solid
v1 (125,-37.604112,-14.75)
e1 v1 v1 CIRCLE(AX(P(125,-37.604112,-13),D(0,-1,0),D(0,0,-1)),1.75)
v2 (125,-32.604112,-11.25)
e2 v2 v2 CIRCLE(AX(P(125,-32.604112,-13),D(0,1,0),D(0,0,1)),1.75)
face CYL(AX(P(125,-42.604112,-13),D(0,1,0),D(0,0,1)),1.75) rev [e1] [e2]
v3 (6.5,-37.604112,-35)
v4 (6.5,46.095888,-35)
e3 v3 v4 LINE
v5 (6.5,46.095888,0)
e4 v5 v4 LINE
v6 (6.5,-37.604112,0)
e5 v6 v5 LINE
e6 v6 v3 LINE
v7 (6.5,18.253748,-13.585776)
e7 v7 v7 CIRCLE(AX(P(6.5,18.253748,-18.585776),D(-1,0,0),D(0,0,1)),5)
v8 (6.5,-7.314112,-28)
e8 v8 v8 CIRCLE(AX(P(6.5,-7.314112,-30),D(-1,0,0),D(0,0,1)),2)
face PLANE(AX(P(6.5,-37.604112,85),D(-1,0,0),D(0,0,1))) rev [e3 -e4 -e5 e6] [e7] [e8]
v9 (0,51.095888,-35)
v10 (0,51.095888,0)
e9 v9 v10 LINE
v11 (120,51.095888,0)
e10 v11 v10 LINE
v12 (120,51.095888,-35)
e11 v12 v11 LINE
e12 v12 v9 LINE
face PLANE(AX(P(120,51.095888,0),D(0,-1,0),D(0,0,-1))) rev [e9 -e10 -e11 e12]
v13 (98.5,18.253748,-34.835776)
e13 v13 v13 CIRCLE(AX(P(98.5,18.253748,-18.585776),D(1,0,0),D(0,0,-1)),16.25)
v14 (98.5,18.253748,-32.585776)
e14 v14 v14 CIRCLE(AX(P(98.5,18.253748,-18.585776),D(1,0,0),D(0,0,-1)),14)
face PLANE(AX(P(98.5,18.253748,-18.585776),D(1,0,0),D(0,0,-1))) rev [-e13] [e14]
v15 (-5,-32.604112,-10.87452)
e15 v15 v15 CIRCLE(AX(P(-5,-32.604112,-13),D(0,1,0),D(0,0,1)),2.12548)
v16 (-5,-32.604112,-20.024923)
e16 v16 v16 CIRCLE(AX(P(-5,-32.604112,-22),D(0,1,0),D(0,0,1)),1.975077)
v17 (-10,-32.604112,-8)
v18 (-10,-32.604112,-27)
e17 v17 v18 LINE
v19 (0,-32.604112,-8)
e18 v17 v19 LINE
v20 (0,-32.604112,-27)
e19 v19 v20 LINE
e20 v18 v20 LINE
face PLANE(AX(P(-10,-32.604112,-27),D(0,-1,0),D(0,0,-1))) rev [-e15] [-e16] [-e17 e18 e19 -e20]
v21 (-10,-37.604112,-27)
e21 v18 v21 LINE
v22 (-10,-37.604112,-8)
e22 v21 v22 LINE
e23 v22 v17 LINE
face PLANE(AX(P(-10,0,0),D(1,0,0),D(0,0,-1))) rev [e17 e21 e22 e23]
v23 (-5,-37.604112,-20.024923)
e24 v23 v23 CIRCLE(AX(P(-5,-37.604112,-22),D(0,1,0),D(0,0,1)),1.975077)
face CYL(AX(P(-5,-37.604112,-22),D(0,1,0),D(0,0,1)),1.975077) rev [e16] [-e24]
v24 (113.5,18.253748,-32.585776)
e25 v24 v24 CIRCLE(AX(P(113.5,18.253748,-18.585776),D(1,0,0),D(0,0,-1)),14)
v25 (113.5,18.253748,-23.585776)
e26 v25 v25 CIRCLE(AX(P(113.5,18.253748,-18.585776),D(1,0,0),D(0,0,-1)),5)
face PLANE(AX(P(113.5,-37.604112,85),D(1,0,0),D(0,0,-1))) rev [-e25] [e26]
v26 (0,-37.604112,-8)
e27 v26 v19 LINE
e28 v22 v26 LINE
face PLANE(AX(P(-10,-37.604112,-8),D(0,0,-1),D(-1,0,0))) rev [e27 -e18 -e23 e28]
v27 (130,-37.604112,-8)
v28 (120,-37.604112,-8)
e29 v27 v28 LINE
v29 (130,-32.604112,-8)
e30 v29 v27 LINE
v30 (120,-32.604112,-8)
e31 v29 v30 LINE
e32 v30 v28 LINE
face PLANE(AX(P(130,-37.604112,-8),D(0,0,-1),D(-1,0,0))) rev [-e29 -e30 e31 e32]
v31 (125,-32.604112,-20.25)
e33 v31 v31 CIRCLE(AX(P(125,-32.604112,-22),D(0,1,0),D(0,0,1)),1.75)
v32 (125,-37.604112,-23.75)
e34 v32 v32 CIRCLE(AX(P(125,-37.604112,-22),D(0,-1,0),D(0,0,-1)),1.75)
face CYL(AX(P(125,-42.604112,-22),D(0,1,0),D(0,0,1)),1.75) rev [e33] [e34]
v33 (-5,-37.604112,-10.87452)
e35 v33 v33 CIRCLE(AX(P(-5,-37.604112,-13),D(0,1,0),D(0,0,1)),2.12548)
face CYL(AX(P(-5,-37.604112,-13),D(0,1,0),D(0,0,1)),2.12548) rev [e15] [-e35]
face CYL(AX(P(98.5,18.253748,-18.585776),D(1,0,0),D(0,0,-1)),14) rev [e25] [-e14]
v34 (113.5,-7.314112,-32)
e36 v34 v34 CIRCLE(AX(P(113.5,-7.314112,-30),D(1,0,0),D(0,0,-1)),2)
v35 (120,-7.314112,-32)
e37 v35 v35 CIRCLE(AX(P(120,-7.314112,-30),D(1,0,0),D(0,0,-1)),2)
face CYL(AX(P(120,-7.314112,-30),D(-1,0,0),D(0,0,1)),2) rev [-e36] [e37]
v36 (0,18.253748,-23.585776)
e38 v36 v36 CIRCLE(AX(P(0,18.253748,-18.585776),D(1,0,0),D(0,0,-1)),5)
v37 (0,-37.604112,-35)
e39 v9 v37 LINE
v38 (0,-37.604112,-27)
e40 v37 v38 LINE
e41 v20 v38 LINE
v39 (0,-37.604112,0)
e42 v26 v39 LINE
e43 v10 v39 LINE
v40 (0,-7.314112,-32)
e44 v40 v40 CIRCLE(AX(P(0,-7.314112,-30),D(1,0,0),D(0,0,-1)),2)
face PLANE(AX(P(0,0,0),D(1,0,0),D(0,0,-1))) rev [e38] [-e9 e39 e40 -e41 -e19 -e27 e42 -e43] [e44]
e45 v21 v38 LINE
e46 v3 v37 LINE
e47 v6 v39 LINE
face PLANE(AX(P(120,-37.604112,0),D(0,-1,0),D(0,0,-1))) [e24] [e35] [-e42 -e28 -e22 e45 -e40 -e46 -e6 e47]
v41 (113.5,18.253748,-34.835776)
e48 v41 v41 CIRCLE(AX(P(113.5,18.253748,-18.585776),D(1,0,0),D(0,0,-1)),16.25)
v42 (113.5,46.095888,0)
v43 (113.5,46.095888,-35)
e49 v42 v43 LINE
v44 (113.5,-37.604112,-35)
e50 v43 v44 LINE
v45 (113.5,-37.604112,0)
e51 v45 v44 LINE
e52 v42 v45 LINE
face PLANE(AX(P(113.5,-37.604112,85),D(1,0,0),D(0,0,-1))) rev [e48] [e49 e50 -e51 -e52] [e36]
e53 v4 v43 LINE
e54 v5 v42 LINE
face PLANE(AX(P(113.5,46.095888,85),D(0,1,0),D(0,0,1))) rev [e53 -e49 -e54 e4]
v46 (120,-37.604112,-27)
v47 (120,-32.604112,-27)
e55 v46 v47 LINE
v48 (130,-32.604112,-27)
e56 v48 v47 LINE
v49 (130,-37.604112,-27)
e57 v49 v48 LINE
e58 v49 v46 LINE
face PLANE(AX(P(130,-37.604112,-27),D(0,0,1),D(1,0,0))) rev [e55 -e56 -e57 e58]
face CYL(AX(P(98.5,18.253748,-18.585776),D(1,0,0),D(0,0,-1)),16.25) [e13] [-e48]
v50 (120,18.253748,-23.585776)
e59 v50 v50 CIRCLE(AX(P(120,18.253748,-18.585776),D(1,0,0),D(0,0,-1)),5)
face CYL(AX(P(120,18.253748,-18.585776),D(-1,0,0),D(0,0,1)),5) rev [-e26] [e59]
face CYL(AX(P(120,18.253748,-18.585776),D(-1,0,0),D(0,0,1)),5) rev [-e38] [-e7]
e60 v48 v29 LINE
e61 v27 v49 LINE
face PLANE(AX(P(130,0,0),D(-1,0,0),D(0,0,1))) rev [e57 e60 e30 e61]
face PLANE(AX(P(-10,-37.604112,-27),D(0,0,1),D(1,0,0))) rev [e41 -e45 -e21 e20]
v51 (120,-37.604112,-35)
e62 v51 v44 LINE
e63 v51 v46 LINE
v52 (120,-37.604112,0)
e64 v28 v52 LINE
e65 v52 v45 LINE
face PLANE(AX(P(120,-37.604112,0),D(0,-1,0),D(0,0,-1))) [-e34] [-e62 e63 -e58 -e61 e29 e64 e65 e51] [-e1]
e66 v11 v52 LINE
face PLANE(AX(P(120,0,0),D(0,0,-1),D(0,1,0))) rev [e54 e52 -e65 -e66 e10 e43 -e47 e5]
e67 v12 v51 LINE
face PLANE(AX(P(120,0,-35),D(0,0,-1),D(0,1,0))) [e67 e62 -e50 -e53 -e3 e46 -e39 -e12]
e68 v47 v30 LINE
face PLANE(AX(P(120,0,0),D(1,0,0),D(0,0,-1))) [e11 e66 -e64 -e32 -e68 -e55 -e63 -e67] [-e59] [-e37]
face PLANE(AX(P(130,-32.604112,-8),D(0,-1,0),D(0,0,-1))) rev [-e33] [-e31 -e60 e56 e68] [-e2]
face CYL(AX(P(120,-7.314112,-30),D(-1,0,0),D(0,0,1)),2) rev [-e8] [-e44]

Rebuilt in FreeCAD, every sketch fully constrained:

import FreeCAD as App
import Part
import Sketcher


def add_polygon(sketch, points):
    """Adds a closed chain of lines whose ends are joined by coincident constraints."""
    first, n = sketch.GeometryCount, len(points)
    for a, b in zip(points, points[1:] + points[:1]):
        sketch.addGeometry(Part.LineSegment(App.Vector(*a, 0), App.Vector(*b, 0)), False)
    for i in range(n):
        sketch.addConstraint(Sketcher.Constraint("Coincident", first + i, 2, first + (i + 1) % n, 1))

doc = App.newDocument("Part")
body = doc.addObject("PartDesign::Body", "Body")

sketch1 = doc.addObject("Sketcher::SketchObject", "Sketch")
body.addObject(sketch1)
sketch1.AttachmentSupport = (doc.YZ_Plane, [""])
sketch1.MapMode = "FlatFace"
add_polygon(sketch1, [(-37.604112, -35), (51.095888, -35), (51.095888, 0), (-37.604112, 0)])
sketch1.addGeometry(Part.Circle(App.Vector(-7.314112, -30, 0), App.Vector(0, 0, 1), 2), False)
sketch1.addGeometry(Part.Circle(App.Vector(18.253748, -18.585776, 0), App.Vector(0, 0, 1), 5), False)
sketch1.addConstraint(Sketcher.Constraint("Horizontal", 0))
sketch1.addConstraint(Sketcher.Constraint("Vertical", 1))
sketch1.addConstraint(Sketcher.Constraint("Horizontal", 2))
sketch1.addConstraint(Sketcher.Constraint("Vertical", 3))
sketch1.addConstraint(Sketcher.Constraint("PointOnObject", 1, 2, -1))
sketch1.addConstraint(Sketcher.Constraint("Diameter", 4, 4.0))
sketch1.addConstraint(Sketcher.Constraint("Diameter", 5, 10.0))
sketch1.addConstraint(Sketcher.Constraint("DistanceY", 1, 1, 1, 2, 35.0))
sketch1.addConstraint(Sketcher.Constraint("DistanceX", 0, 1, 0, 2, 88.7))
sketch1.addConstraint(Sketcher.Constraint("DistanceY", 4, 3, -1, 1, 30.0))
sketch1.addConstraint(Sketcher.Constraint("DistanceX", 4, 3, 0, 2, 58.41))
sketch1.addConstraint(Sketcher.Constraint("DistanceX", -1, 1, 5, 3, 18.253748))
sketch1.addConstraint(Sketcher.Constraint("DistanceX", 4, 3, 5, 3, 25.567861))
sketch1.addConstraint(Sketcher.Constraint("DistanceY", 5, 3, -1, 1, 18.585776))
pad1 = doc.addObject("PartDesign::Pad", "Pad")
body.addObject(pad1)
pad1.Profile = sketch1
pad1.Length = 120

sketch2 = doc.addObject("Sketcher::SketchObject", "Sketch001")
body.addObject(sketch2)
sketch2.AttachmentSupport = (doc.XY_Plane, [""])
sketch2.MapMode = "FlatFace"
sketch2.AttachmentOffset = App.Placement(App.Vector(0, 0, -35), App.Rotation())
add_polygon(sketch2, [(113.5, 46.095888), (113.5, -37.604112), (6.5, -37.604112), (6.5, 46.095888)])
sketch2.addConstraint(Sketcher.Constraint("Vertical", 0))
sketch2.addConstraint(Sketcher.Constraint("Horizontal", 1))
sketch2.addConstraint(Sketcher.Constraint("Vertical", 2))
sketch2.addConstraint(Sketcher.Constraint("Horizontal", 3))
sketch2.addConstraint(Sketcher.Constraint("DistanceX", 1, 2, 1, 1, 107.0))
sketch2.addConstraint(Sketcher.Constraint("DistanceY", 0, 2, 0, 1, 83.7))
sketch2.addConstraint(Sketcher.Constraint("DistanceX", -1, 1, 0, 2, 113.5))
sketch2.addConstraint(Sketcher.Constraint("DistanceY", 0, 2, -1, 1, 37.604112))
pocket1 = doc.addObject("PartDesign::Pocket", "Pocket")
body.addObject(pocket1)
pocket1.Profile = sketch2
pocket1.Length = 120
pocket1.Reversed = True

sketch3 = doc.addObject("Sketcher::SketchObject", "Sketch002")
body.addObject(sketch3)
sketch3.AttachmentSupport = (doc.YZ_Plane, [""])
sketch3.MapMode = "FlatFace"
sketch3.AttachmentOffset = App.Placement(App.Vector(0, 0, 120), App.Rotation())
sketch3.addGeometry(Part.Circle(App.Vector(18.253748, -18.585776, 0), App.Vector(0, 0, 1), 16.25), False)
sketch3.addGeometry(Part.Circle(App.Vector(18.253748, -18.585776, 0), App.Vector(0, 0, 1), 14), False)
sketch3.addConstraint(Sketcher.Constraint("Coincident", 1, 3, 0, 3))
sketch3.addConstraint(Sketcher.Constraint("Diameter", 1, 28.0))
sketch3.addConstraint(Sketcher.Constraint("Diameter", 0, 32.5))
sketch3.addConstraint(Sketcher.Constraint("DistanceX", -1, 1, 0, 3, 18.253748))
sketch3.addConstraint(Sketcher.Constraint("DistanceY", 0, 3, -1, 1, 18.585776))
pad2 = doc.addObject("PartDesign::Pad", "Pad001")
body.addObject(pad2)
pad2.Profile = sketch3
pad2.Length = 21.5
pad2.Reversed = True

sketch4 = doc.addObject("Sketcher::SketchObject", "Sketch003")
body.addObject(sketch4)
sketch4.AttachmentSupport = (doc.YZ_Plane, [""])
sketch4.MapMode = "FlatFace"
sketch4.AttachmentOffset = App.Placement(App.Vector(0, 0, 120), App.Rotation())
add_polygon(sketch4, [(-32.604112, -8), (-37.604112, -8), (-37.604112, -27), (-32.604112, -27)])
sketch4.addConstraint(Sketcher.Constraint("Horizontal", 0))
sketch4.addConstraint(Sketcher.Constraint("Vertical", 1))
sketch4.addConstraint(Sketcher.Constraint("Horizontal", 2))
sketch4.addConstraint(Sketcher.Constraint("Vertical", 3))
sketch4.addConstraint(Sketcher.Constraint("DistanceX", 0, 2, 0, 1, 5.0))
sketch4.addConstraint(Sketcher.Constraint("DistanceY", 1, 2, 1, 1, 19.0))
sketch4.addConstraint(Sketcher.Constraint("DistanceY", 0, 2, -1, 1, 8.0))
sketch4.addConstraint(Sketcher.Constraint("DistanceX", 0, 2, -1, 1, 37.604112))
pad3 = doc.addObject("PartDesign::Pad", "Pad002")
body.addObject(pad3)
pad3.Profile = sketch4
pad3.Length = 10

sketch5 = doc.addObject("Sketcher::SketchObject", "Sketch004")
body.addObject(sketch5)
sketch5.AttachmentSupport = (doc.XZ_Plane, [""])
sketch5.MapMode = "FlatFace"
sketch5.AttachmentOffset = App.Placement(App.Vector(0, 0, 32.604112), App.Rotation())
sketch5.addGeometry(Part.Circle(App.Vector(125, -22, 0), App.Vector(0, 0, 1), 1.75), False)
sketch5.addGeometry(Part.Circle(App.Vector(125, -13, 0), App.Vector(0, 0, 1), 1.75), False)
sketch5.addConstraint(Sketcher.Constraint("Equal", 0, 1))
sketch5.addConstraint(Sketcher.Constraint("Vertical", 0, 3, 1, 3))
sketch5.addConstraint(Sketcher.Constraint("Diameter", 0, 3.5))
sketch5.addConstraint(Sketcher.Constraint("DistanceX", -1, 1, 0, 3, 125.0))
sketch5.addConstraint(Sketcher.Constraint("DistanceY", 0, 3, -1, 1, 22.0))
sketch5.addConstraint(Sketcher.Constraint("DistanceY", 1, 3, -1, 1, 13.0))
pocket2 = doc.addObject("PartDesign::Pocket", "Pocket001")
body.addObject(pocket2)
pocket2.Profile = sketch5
pocket2.Length = 10
pocket2.Reversed = True

sketch6 = doc.addObject("Sketcher::SketchObject", "Sketch005")
body.addObject(sketch6)
sketch6.AttachmentSupport = (doc.YZ_Plane, [""])
sketch6.MapMode = "FlatFace"
add_polygon(sketch6, [(-32.604112, -27), (-37.604112, -27), (-37.604112, -8), (-32.604112, -8)])
sketch6.addConstraint(Sketcher.Constraint("Horizontal", 0))
sketch6.addConstraint(Sketcher.Constraint("Vertical", 1))
sketch6.addConstraint(Sketcher.Constraint("Horizontal", 2))
sketch6.addConstraint(Sketcher.Constraint("Vertical", 3))
sketch6.addConstraint(Sketcher.Constraint("DistanceX", 0, 2, 0, 1, 5.0))
sketch6.addConstraint(Sketcher.Constraint("DistanceY", 1, 1, 1, 2, 19.0))
sketch6.addConstraint(Sketcher.Constraint("DistanceY", 0, 2, -1, 1, 27.0))
sketch6.addConstraint(Sketcher.Constraint("DistanceX", 0, 2, -1, 1, 37.604112))
pad4 = doc.addObject("PartDesign::Pad", "Pad003")
body.addObject(pad4)
pad4.Profile = sketch6
pad4.Length = 10
pad4.Reversed = True

sketch7 = doc.addObject("Sketcher::SketchObject", "Sketch006")
body.addObject(sketch7)
sketch7.AttachmentSupport = (doc.XZ_Plane, [""])
sketch7.MapMode = "FlatFace"
sketch7.AttachmentOffset = App.Placement(App.Vector(0, 0, 32.604112), App.Rotation())
sketch7.addGeometry(Part.Circle(App.Vector(-5, -22, 0), App.Vector(0, 0, 1), 1.975077), False)
sketch7.addGeometry(Part.Circle(App.Vector(-5, -13, 0), App.Vector(0, 0, 1), 2.12548), False)
sketch7.addConstraint(Sketcher.Constraint("Vertical", 0, 3, 1, 3))
sketch7.addConstraint(Sketcher.Constraint("DistanceX", 0, 3, -1, 1, 5.0))
sketch7.addConstraint(Sketcher.Constraint("DistanceY", 0, 3, -1, 1, 22.0))
sketch7.addConstraint(Sketcher.Constraint("DistanceY", 1, 3, -1, 1, 13.0))
sketch7.addConstraint(Sketcher.Constraint("Diameter", 1, 4.250959))
sketch7.addConstraint(Sketcher.Constraint("Diameter", 0, 3.950155))
pocket3 = doc.addObject("PartDesign::Pocket", "Pocket002")
body.addObject(pocket3)
pocket3.Profile = sketch7
pocket3.Type = "ThroughAll"
pocket3.Reversed = True

doc.recompute()
